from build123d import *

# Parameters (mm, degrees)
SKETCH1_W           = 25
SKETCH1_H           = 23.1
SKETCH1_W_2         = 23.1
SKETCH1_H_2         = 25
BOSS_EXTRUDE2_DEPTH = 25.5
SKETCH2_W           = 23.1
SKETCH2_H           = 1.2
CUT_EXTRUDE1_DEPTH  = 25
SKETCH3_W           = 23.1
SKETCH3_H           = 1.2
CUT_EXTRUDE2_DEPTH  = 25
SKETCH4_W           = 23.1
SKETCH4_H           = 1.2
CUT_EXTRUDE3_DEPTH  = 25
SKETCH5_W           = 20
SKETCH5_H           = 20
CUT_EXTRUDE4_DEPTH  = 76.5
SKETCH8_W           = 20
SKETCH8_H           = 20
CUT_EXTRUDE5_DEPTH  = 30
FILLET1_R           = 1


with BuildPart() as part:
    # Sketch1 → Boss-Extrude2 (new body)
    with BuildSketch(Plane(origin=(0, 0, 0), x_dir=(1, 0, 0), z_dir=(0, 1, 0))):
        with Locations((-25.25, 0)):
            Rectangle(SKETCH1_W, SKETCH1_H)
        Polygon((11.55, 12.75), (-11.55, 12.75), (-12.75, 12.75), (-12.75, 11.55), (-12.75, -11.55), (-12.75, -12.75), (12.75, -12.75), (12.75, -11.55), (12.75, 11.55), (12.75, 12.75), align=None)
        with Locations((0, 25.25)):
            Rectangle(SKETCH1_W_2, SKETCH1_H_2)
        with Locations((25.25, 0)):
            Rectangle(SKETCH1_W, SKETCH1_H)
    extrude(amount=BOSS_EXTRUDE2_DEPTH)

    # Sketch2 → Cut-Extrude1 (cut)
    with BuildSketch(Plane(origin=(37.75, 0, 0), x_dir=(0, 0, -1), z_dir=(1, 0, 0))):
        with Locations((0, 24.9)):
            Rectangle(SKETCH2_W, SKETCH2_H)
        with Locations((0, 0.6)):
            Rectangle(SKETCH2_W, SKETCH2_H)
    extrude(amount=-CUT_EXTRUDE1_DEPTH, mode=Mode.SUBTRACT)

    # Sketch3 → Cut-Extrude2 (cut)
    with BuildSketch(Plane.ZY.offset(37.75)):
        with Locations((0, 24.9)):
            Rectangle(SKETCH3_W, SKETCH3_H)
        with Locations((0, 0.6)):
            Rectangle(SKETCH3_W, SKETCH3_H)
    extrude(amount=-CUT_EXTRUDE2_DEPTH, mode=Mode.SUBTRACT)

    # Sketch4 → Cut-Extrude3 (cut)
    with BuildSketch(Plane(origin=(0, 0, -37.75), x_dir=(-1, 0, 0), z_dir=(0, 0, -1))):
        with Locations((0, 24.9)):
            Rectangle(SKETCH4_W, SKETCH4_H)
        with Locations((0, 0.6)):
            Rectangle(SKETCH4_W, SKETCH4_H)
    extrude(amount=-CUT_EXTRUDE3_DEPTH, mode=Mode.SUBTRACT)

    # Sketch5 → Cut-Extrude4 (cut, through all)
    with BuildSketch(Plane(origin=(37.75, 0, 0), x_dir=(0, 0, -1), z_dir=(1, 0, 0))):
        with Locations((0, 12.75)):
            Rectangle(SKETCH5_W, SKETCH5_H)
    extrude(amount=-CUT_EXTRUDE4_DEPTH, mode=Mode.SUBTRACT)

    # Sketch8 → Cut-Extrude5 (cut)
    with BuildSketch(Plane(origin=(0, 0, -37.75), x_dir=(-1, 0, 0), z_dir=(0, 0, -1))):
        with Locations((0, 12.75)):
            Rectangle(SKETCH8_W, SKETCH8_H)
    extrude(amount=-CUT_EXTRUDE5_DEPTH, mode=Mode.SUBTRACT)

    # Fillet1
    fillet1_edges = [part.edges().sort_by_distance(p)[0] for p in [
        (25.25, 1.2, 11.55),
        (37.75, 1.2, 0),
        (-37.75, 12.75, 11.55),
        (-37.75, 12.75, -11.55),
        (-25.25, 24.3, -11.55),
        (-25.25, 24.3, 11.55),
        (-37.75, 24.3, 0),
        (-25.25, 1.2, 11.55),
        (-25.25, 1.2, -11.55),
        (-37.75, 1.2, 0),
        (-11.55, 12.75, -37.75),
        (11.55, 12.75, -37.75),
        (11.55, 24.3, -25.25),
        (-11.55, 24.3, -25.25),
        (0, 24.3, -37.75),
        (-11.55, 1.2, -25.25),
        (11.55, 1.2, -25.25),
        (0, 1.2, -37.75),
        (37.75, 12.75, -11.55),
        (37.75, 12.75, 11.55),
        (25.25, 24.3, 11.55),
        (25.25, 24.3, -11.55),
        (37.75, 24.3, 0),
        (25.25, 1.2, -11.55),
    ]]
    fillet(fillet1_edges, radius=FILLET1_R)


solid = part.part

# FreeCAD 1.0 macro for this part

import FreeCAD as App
import Part
import Sketcher
from FreeCAD import Vector


def edges_at(feature, points):
    """Names of the edges that pass closest to the given points."""
    edges = feature.Shape.Edges
    near = lambda p: min(range(len(edges)), key=lambda i: edges[i].distToShape(Part.Vertex(*p))[0])
    return sorted({f"Edge{near(p) + 1}" for p in points})


def add_polygon(sketch, points):
    """Adds a closed chain of lines whose ends are joined by coincident constraints."""
    first, n = sketch.GeometryCount, len(points)
    for a, b in zip(points, points[1:] + points[:1]):
        sketch.addGeometry(Part.LineSegment(App.Vector(*a, 0), App.Vector(*b, 0)), False)
    for i in range(n):
        sketch.addConstraint(Sketcher.Constraint("Coincident", first + i, 2, first + (i + 1) % n, 1))

doc = App.newDocument("Part")
body = doc.addObject("PartDesign::Body", "Body")

sketch1 = body.newObject("Sketcher::SketchObject", "Sketch")
sketch1.AttachmentSupport = (doc.getObject("XZ_Plane"), [""])
sketch1.MapMode = "FlatFace"
add_polygon(sketch1, [(-37.75, -11.55), (-37.75, 11.55), (-12.75, 11.55), (-12.75, 12.75), (12.75, 12.75), (12.75, 11.55), (37.75, 11.55), (37.75, -11.55), (12.75, -11.55), (12.75, -12.75), (11.55, -12.75), (11.55, -37.75), (-11.55, -37.75), (-11.55, -12.75), (-12.75, -12.75), (-12.75, -11.55)])
sketch1.addConstraint(Sketcher.Constraint("Vertical", 0))
sketch1.addConstraint(Sketcher.Constraint("Horizontal", 1))
sketch1.addConstraint(Sketcher.Constraint("Vertical", 2))
sketch1.addConstraint(Sketcher.Constraint("Horizontal", 3))
sketch1.addConstraint(Sketcher.Constraint("Vertical", 4))
sketch1.addConstraint(Sketcher.Constraint("Horizontal", 5))
sketch1.addConstraint(Sketcher.Constraint("Vertical", 6))
sketch1.addConstraint(Sketcher.Constraint("Horizontal", 7))
sketch1.addConstraint(Sketcher.Constraint("Vertical", 8))
sketch1.addConstraint(Sketcher.Constraint("Horizontal", 9))
sketch1.addConstraint(Sketcher.Constraint("Vertical", 10))
sketch1.addConstraint(Sketcher.Constraint("Horizontal", 11))
sketch1.addConstraint(Sketcher.Constraint("Vertical", 12))
sketch1.addConstraint(Sketcher.Constraint("Horizontal", 13))
sketch1.addConstraint(Sketcher.Constraint("Vertical", 14))
sketch1.addConstraint(Sketcher.Constraint("Horizontal", 15))
sketch1.addConstraint(Sketcher.Constraint("Symmetric", 0, 2, 6, 2, -1, 1))
sketch1.addConstraint(Sketcher.Constraint("Symmetric", 2, 2, 8, 2, -1, 1))
sketch1.addConstraint(Sketcher.Constraint("Symmetric", 3, 2, 13, 2, -1, 1))
sketch1.addConstraint(Sketcher.Constraint("Symmetric", 1, 2, 4, 2, -2))
sketch1.addConstraint(Sketcher.Constraint("Horizontal", 7, 2, 14, 2))
sketch1.addConstraint(Sketcher.Constraint("Equal", 9, 13))
sketch1.addConstraint(Sketcher.Constraint("Equal", 11, 0))
sketch1.addConstraint(Sketcher.Constraint("Equal", 13, 2))
sketch1.addConstraint(Sketcher.Constraint("Equal", 15, 10))
sketch1.addConstraint(Sketcher.Constraint("DistanceX", 1, 1, 1, 2, 25.0))
sketch1.addConstraint(Sketcher.Constraint("DistanceX", 3, 1, 3, 2, 25.5))
sketch1.addConstraint(Sketcher.Constraint("DistanceX", 9, 2, 9, 1, 1.2))
pad1 = body.newObject("PartDesign::Pad", "Pad")
pad1.Profile = sketch1
pad1.Length = 25.5
pad1.Reversed = True

sketch2 = body.newObject("Sketcher::SketchObject", "Sketch001")
sketch2.AttachmentSupport = (doc.getObject("YZ_Plane"), [""])
sketch2.MapMode = "FlatFace"
sketch2.AttachmentOffset = App.Placement(Vector(0, 0, 37.75), App.Rotation())
add_polygon(sketch2, [(25.5, 11.55), (24.3, 11.55), (24.3, -11.55), (25.5, -11.55)])
add_polygon(sketch2, [(1.2, 11.55), (0, 11.55), (0, -11.55), (1.2, -11.55)])
sketch2.addConstraint(Sketcher.Constraint("Horizontal", 0))
sketch2.addConstraint(Sketcher.Constraint("Vertical", 1))
sketch2.addConstraint(Sketcher.Constraint("Horizontal", 2))
sketch2.addConstraint(Sketcher.Constraint("Vertical", 3))
sketch2.addConstraint(Sketcher.Constraint("Horizontal", 4))
sketch2.addConstraint(Sketcher.Constraint("Vertical", 5))
sketch2.addConstraint(Sketcher.Constraint("Horizontal", 6))
sketch2.addConstraint(Sketcher.Constraint("Vertical", 7))
sketch2.addConstraint(Sketcher.Constraint("Symmetric", 4, 2, 5, 2, -1, 1))
sketch2.addConstraint(Sketcher.Constraint("Horizontal", 3, 2, 4, 2))
sketch2.addConstraint(Sketcher.Constraint("Horizontal", 2, 2, 5, 2))
sketch2.addConstraint(Sketcher.Constraint("Equal", 2, 4))
sketch2.addConstraint(Sketcher.Constraint("DistanceX", 0, 2, 0, 1, 1.2))
sketch2.addConstraint(Sketcher.Constraint("DistanceY", 1, 2, 1, 1, 23.1))
sketch2.addConstraint(Sketcher.Constraint("DistanceX", -1, 1, 0, 2, 24.3))
pocket1 = body.newObject("PartDesign::Pocket", "Pocket")
pocket1.Profile = sketch2
pocket1.Length = 25

sketch3 = body.newObject("Sketcher::SketchObject", "Sketch002")
sketch3.AttachmentSupport = (doc.getObject("YZ_Plane"), [""])
sketch3.MapMode = "FlatFace"
sketch3.AttachmentOffset = App.Placement(Vector(0, 0, -37.75), App.Rotation())
add_polygon(sketch3, [(25.5, -11.55), (24.3, -11.55), (24.3, 11.55), (25.5, 11.55)])
add_polygon(sketch3, [(1.2, -11.55), (0, -11.55), (0, 11.55), (1.2, 11.55)])
sketch3.addConstraint(Sketcher.Constraint("Horizontal", 0))
sketch3.addConstraint(Sketcher.Constraint("Vertical", 1))
sketch3.addConstraint(Sketcher.Constraint("Horizontal", 2))
sketch3.addConstraint(Sketcher.Constraint("Vertical", 3))
sketch3.addConstraint(Sketcher.Constraint("Horizontal", 4))
sketch3.addConstraint(Sketcher.Constraint("Vertical", 5))
sketch3.addConstraint(Sketcher.Constraint("Horizontal", 6))
sketch3.addConstraint(Sketcher.Constraint("Vertical", 7))
sketch3.addConstraint(Sketcher.Constraint("Symmetric", 4, 2, 5, 2, -1, 1))
sketch3.addConstraint(Sketcher.Constraint("Horizontal", 3, 2, 4, 2))
sketch3.addConstraint(Sketcher.Constraint("Horizontal", 2, 2, 5, 2))
sketch3.addConstraint(Sketcher.Constraint("Equal", 2, 4))
sketch3.addConstraint(Sketcher.Constraint("DistanceX", 0, 2, 0, 1, 1.2))
sketch3.addConstraint(Sketcher.Constraint("DistanceY", 1, 1, 1, 2, 23.1))
sketch3.addConstraint(Sketcher.Constraint("DistanceX", -1, 1, 0, 2, 24.3))
pocket2 = body.newObject("PartDesign::Pocket", "Pocket001")
pocket2.Profile = sketch3
pocket2.Length = 25
pocket2.Reversed = True

sketch4 = body.newObject("Sketcher::SketchObject", "Sketch003")
sketch4.AttachmentSupport = (doc.getObject("XY_Plane"), [""])
sketch4.MapMode = "FlatFace"
sketch4.AttachmentOffset = App.Placement(Vector(0, 0, -37.75), App.Rotation())
add_polygon(sketch4, [(11.55, 25.5), (11.55, 24.3), (-11.55, 24.3), (-11.55, 25.5)])
add_polygon(sketch4, [(11.55, 1.2), (11.55, 0), (-11.55, 0), (-11.55, 1.2)])
sketch4.addConstraint(Sketcher.Constraint("Vertical", 0))
sketch4.addConstraint(Sketcher.Constraint("Horizontal", 1))
sketch4.addConstraint(Sketcher.Constraint("Vertical", 2))
sketch4.addConstraint(Sketcher.Constraint("Horizontal", 3))
sketch4.addConstraint(Sketcher.Constraint("Vertical", 4))
sketch4.addConstraint(Sketcher.Constraint("Horizontal", 5))
sketch4.addConstraint(Sketcher.Constraint("Vertical", 6))
sketch4.addConstraint(Sketcher.Constraint("Horizontal", 7))
sketch4.addConstraint(Sketcher.Constraint("Symmetric", 4, 2, 5, 2, -1, 1))
sketch4.addConstraint(Sketcher.Constraint("Vertical", 3, 2, 4, 2))
sketch4.addConstraint(Sketcher.Constraint("Vertical", 2, 2, 5, 2))
sketch4.addConstraint(Sketcher.Constraint("Equal", 2, 4))
sketch4.addConstraint(Sketcher.Constraint("DistanceX", 1, 2, 1, 1, 23.1))
sketch4.addConstraint(Sketcher.Constraint("DistanceY", 0, 2, 0, 1, 1.2))
sketch4.addConstraint(Sketcher.Constraint("DistanceY", -1, 1, 0, 2, 24.3))
pocket3 = body.newObject("PartDesign::Pocket", "Pocket002")
pocket3.Profile = sketch4
pocket3.Length = 25
pocket3.Reversed = True

sketch5 = body.newObject("Sketcher::SketchObject", "Sketch004")
sketch5.AttachmentSupport = (doc.getObject("YZ_Plane"), [""])
sketch5.MapMode = "FlatFace"
sketch5.AttachmentOffset = App.Placement(Vector(0, 0, 37.75), App.Rotation())
add_polygon(sketch5, [(22.75, 10), (2.75, 10), (2.75, -10), (22.75, -10)])
sketch5.addConstraint(Sketcher.Constraint("Horizontal", 0))
sketch5.addConstraint(Sketcher.Constraint("Vertical", 1))
sketch5.addConstraint(Sketcher.Constraint("Horizontal", 2))
sketch5.addConstraint(Sketcher.Constraint("Vertical", 3))
sketch5.addConstraint(Sketcher.Constraint("Equal", 2, 1))
sketch5.addConstraint(Sketcher.Constraint("DistanceX", 0, 2, 0, 1, 20.0))
sketch5.addConstraint(Sketcher.Constraint("DistanceY", -1, 1, 0, 2, 10.0))
sketch5.addConstraint(Sketcher.Constraint("DistanceX", -1, 1, 0, 2, 2.75))
pocket4 = body.newObject("PartDesign::Pocket", "Pocket003")
pocket4.Profile = sketch5
pocket4.Type = "ThroughAll"

sketch6 = body.newObject("Sketcher::SketchObject", "Sketch005")
sketch6.AttachmentSupport = (doc.getObject("XY_Plane"), [""])
sketch6.MapMode = "FlatFace"
sketch6.AttachmentOffset = App.Placement(Vector(0, 0, -37.75), App.Rotation())
add_polygon(sketch6, [(10, 22.75), (10, 2.75), (-10, 2.75), (-10, 22.75)])
sketch6.addConstraint(Sketcher.Constraint("Vertical", 0))
sketch6.addConstraint(Sketcher.Constraint("Horizontal", 1))
sketch6.addConstraint(Sketcher.Constraint("Vertical", 2))
sketch6.addConstraint(Sketcher.Constraint("Horizontal", 3))
sketch6.addConstraint(Sketcher.Constraint("Equal", 3, 0))
sketch6.addConstraint(Sketcher.Constraint("DistanceX", 1, 2, 1, 1, 20.0))
sketch6.addConstraint(Sketcher.Constraint("DistanceX", -1, 1, 0, 2, 10.0))
sketch6.addConstraint(Sketcher.Constraint("DistanceY", -1, 1, 0, 2, 2.75))
pocket5 = body.newObject("PartDesign::Pocket", "Pocket004")
pocket5.Profile = sketch6
pocket5.Length = 30
pocket5.Reversed = True
doc.recompute()

fillet = body.newObject("PartDesign::Fillet", "Fillet")
fillet.Base = (pocket5, edges_at(pocket5, [
    (25.25, 1.2, 11.55),
    (37.75, 1.2, 0),
    (-37.75, 12.75, 11.55),
    (-37.75, 12.75, -11.55),
    (-25.25, 24.3, -11.55),
    (-25.25, 24.3, 11.55),
    (-37.75, 24.3, 0),
    (-25.25, 1.2, 11.55),
    (-25.25, 1.2, -11.55),
    (-37.75, 1.2, 0),
    (-11.55, 12.75, -37.75),
    (11.55, 12.75, -37.75),
    (11.55, 24.3, -25.25),
    (-11.55, 24.3, -25.25),
    (0, 24.3, -37.75),
    (-11.55, 1.2, -25.25),
    (11.55, 1.2, -25.25),
    (0, 1.2, -37.75),
    (37.75, 12.75, -11.55),
    (37.75, 12.75, 11.55),
    (25.25, 24.3, 11.55),
    (25.25, 24.3, -11.55),
    (37.75, 24.3, 0),
    (25.25, 1.2, -11.55),
]))
fillet.Radius = 1

doc.recompute()
